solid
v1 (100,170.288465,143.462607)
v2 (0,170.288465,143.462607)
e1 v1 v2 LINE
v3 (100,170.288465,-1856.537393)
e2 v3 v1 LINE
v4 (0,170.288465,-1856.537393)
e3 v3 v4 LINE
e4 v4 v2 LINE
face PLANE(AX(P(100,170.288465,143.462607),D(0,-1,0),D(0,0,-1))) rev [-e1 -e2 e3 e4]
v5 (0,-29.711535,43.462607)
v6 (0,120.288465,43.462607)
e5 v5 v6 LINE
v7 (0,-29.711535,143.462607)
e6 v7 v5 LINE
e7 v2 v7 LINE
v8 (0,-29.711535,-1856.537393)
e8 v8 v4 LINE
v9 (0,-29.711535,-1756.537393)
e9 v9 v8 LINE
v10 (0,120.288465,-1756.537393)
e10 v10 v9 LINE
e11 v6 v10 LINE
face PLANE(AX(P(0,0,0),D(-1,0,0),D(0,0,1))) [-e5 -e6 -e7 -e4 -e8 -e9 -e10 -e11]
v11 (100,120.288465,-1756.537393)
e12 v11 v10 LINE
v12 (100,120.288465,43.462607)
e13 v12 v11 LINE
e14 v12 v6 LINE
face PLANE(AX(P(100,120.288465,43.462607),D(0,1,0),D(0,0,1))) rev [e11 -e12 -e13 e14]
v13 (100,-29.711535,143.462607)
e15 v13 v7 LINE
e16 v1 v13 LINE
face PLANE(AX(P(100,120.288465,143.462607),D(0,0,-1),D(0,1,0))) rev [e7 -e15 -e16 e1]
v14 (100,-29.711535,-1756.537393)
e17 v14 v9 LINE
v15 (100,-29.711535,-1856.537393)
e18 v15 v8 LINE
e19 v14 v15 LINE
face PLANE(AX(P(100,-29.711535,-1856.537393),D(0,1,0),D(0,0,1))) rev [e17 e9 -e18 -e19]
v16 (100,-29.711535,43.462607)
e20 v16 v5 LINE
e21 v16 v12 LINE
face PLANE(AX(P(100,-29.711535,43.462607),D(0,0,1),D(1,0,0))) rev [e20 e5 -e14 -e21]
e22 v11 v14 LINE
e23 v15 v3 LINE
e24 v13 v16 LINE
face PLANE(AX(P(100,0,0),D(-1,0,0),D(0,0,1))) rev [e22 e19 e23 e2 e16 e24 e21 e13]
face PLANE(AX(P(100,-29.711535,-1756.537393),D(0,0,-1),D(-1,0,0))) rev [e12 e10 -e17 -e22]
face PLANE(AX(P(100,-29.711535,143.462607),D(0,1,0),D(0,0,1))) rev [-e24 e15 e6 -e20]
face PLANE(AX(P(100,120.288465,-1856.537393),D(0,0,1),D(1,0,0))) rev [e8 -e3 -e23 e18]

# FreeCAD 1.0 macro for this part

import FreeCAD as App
import Part
import Sketcher
Q = App.Units.Quantity


def add_polygon(sketch, points):
    """Adds a closed chain of lines whose ends are joined by coincident constraints."""
    first, n = sketch.GeometryCount, len(points)
    for a, b in zip(points, points[1:] + points[:1]):
        sketch.addGeometry(Part.LineSegment(App.Vector(*a, 0), App.Vector(*b, 0)), False)
    for i in range(n):
        sketch.addConstraint(Sketcher.Constraint("Coincident", first + i, 2, first + (i + 1) % n, 1))

doc = App.newDocument("Part")
body = doc.addObject("PartDesign::Body", "Body")

# Sketch on YZ plane
sketch1 = doc.addObject("Sketcher::SketchObject", "Sketch")
body.addObject(sketch1)
sketch1.AttachmentSupport = (doc.YZ_Plane, [""])
sketch1.MapMode = "FlatFace"
add_polygon(sketch1, [(120, 43), (120, -1757), (-30, -1757), (-30, -1857), (170, -1857), (170, 143), (-30, 143), (-30, 43)])  # lines 0-7
sketch1.addConstraint([
    Sketcher.Constraint("Vertical", 0),
    Sketcher.Constraint("Horizontal", 1),
    Sketcher.Constraint("Vertical", 2),
    Sketcher.Constraint("Horizontal", 3),
    Sketcher.Constraint("Vertical", 4),
    Sketcher.Constraint("Horizontal", 5),
    Sketcher.Constraint("Vertical", 6),
    Sketcher.Constraint("Horizontal", 7),
    Sketcher.Constraint("Vertical", 2, 2, 5, 2),
    Sketcher.Constraint("Equal", 2, 6),
    Sketcher.Constraint("DistanceX", 1, 2, 1, 1, Q("150 mm")),
    Sketcher.Constraint("DistanceX", 3, 1, 3, 2, Q("200 mm")),
    Sketcher.Constraint("DistanceY", 0, 2, 0, 1, Q("1800 mm")),
    Sketcher.Constraint("DistanceY", 2, 2, 2, 1, Q("100 mm")),
    Sketcher.Constraint("DistanceX", -1, 1, 0, 2, Q("120.288465 mm")),
    Sketcher.Constraint("DistanceY", 0, 2, -1, 1, Q("1756.537393 mm")),
])
pad1 = doc.addObject("PartDesign::Pad", "Pad")
body.addObject(pad1)
pad1.Profile = sketch1
pad1.Length = 100

doc.recompute()
